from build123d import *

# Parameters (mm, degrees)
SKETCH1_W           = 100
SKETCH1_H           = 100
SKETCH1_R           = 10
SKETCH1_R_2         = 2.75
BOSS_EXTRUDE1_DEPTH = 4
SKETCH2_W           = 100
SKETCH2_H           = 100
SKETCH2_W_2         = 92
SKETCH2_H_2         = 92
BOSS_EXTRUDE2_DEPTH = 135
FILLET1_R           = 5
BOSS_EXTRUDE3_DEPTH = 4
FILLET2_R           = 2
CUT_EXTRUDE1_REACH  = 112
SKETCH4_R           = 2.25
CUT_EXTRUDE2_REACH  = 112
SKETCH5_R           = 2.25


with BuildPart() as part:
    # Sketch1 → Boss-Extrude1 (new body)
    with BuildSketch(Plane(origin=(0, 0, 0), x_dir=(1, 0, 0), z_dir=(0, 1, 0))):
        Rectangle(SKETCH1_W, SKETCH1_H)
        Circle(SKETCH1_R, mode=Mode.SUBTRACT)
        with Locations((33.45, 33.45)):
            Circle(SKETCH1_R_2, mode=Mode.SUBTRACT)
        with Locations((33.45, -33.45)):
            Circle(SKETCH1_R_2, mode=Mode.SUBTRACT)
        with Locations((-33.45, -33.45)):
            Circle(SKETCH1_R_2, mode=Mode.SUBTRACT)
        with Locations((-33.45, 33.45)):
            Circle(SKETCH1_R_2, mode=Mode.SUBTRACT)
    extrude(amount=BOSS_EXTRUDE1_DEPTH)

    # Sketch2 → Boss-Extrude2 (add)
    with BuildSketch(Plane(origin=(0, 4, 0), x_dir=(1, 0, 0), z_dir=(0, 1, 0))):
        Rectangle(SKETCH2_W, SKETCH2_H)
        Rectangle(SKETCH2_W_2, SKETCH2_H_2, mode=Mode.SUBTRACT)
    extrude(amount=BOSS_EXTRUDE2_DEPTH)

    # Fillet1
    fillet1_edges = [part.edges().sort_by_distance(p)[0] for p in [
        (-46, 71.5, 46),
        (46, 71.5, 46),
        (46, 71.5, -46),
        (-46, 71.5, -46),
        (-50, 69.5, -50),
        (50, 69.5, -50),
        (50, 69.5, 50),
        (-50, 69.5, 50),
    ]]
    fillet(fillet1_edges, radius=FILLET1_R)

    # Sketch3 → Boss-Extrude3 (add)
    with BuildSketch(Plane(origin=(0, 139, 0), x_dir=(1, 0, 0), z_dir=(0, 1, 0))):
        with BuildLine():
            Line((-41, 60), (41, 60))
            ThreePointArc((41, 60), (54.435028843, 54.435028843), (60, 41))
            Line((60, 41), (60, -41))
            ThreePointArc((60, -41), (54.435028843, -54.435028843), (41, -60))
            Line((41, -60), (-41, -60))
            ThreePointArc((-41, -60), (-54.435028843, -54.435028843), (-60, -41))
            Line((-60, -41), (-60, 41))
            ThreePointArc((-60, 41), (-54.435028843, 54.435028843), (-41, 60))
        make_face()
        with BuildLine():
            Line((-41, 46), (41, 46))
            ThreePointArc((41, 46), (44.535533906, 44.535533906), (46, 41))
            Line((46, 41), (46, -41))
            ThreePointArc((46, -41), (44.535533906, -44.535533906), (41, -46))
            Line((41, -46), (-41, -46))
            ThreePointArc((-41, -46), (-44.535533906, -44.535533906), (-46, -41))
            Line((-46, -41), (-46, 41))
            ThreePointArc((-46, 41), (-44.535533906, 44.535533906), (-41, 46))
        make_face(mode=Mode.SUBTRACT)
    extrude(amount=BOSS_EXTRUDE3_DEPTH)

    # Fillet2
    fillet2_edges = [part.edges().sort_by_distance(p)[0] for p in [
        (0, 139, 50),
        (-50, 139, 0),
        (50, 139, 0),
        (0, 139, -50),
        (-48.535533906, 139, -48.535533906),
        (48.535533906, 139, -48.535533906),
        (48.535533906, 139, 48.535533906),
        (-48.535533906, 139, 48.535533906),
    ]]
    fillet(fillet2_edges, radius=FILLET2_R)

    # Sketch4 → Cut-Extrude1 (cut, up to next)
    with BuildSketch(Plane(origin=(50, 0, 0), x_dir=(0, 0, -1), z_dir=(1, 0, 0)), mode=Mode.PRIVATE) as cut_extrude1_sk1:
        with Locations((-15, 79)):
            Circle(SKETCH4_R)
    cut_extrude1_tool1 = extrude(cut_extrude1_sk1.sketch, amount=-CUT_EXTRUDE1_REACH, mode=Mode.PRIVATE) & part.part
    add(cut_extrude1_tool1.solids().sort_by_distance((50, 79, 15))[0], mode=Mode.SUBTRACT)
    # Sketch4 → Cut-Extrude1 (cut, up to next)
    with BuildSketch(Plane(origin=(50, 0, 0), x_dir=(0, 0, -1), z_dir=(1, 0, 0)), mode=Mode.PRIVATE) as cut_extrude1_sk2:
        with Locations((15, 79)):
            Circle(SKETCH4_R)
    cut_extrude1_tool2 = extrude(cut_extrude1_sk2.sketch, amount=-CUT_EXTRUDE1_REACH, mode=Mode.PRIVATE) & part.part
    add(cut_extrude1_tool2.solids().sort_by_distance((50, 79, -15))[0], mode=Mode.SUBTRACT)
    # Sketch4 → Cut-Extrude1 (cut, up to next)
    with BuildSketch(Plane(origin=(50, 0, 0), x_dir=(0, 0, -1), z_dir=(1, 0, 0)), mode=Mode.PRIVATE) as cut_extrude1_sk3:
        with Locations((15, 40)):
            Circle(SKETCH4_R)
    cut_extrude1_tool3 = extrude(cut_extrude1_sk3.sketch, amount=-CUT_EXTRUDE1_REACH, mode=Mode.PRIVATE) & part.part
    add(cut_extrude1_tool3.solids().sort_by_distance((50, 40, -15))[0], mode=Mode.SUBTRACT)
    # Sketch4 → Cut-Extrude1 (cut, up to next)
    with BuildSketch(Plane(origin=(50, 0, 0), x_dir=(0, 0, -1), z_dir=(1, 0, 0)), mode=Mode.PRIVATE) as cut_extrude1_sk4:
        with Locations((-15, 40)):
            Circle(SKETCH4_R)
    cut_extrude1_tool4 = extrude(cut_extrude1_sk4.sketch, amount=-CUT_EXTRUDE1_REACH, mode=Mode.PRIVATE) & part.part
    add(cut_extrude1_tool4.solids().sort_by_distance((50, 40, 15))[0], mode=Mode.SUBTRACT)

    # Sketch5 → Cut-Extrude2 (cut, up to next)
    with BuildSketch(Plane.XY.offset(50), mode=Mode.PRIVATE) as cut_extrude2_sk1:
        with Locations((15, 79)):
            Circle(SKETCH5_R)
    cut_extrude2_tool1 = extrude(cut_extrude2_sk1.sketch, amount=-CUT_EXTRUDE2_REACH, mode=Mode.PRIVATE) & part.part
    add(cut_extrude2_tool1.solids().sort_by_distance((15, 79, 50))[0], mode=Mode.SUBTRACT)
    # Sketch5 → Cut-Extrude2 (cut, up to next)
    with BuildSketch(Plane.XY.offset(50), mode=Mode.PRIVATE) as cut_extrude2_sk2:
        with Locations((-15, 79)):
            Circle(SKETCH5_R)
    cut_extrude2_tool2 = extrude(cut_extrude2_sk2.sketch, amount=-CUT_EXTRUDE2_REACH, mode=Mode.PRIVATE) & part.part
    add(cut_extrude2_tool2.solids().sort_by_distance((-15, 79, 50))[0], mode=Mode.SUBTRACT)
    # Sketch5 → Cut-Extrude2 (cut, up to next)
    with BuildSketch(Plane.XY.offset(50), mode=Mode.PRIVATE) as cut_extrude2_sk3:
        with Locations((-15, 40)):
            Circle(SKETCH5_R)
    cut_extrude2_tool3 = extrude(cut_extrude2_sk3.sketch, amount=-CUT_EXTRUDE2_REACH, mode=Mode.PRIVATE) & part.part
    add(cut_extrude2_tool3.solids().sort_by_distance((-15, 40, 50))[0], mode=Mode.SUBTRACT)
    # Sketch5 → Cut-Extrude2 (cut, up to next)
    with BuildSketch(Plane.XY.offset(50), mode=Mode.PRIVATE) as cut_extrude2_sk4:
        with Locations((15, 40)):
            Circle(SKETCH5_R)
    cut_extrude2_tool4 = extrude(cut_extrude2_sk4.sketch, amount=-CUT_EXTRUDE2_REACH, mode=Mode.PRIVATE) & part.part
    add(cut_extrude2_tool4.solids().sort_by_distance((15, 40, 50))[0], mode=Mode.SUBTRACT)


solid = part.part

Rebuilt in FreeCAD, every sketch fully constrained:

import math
import FreeCAD as App
import Part
import Sketcher

V = App.Vector
Q = App.Units.Quantity


def edges_at(feature, points):
    """Names of the edges that pass closest to the given points."""
    edges = feature.Shape.Edges
    near = lambda p: min(range(len(edges)), key=lambda i: edges[i].distToShape(Part.Vertex(*p))[0])
    return sorted({f"Edge{near(p) + 1}" for p in points})

doc = App.newDocument("Part")
params = doc.addObject("Spreadsheet::Sheet", "Params")
for row, (alias, value) in enumerate([
    ("sketch1_diameter", "20 mm"),
    ("sketch1_diameter2", "5.5 mm"),
    ("sketch1_width", "100 mm"),
    ("pad1_length", "4 mm"),
    ("sketch2_width", "100 mm"),
    ("sketch2_width2", "92 mm"),
    ("pad2_length", "135 mm"),
    ("fillet_radius", "5 mm"),
    ("sketch3_radius", "19 mm"),
    ("sketch3_radius2", "5 mm"),
    ("sketch3_width", "82 mm"),
    ("pad3_length", "4 mm"),
    ("fillet2_radius", "2 mm"),
    ("sketch4_diameter", "4.5 mm"),
    ("sketch5_diameter", "4.5 mm"),
    ("sketch6_diameter", "4.5 mm"),
    ("sketch7_diameter", "4.5 mm"),
    ("sketch8_diameter", "4.5 mm"),
    ("sketch9_diameter", "4.5 mm"),
    ("sketch10_diameter", "4.5 mm"),
    ("sketch11_diameter", "4.5 mm"),
], start=1):
    params.set(f"A{row}", alias)
    params.set(f"B{row}", "=" + value)
    params.setAlias(f"B{row}", alias)

body = doc.addObject("PartDesign::Body", "Body")

sketch1 = body.newObject("Sketcher::SketchObject", "Sketch")
sketch1.AttachmentSupport = (doc.getObject("XZ_Plane"), [""])
sketch1.MapMode = "FlatFace"
sketch1.addGeometry(Part.LineSegment(V(-50, -50, 0), V(-50, 50, 0)), False)
sketch1.addGeometry(Part.LineSegment(V(-50, 50, 0), V(50, 50, 0)), False)
sketch1.addGeometry(Part.LineSegment(V(50, 50, 0), V(50, -50, 0)), False)
sketch1.addGeometry(Part.LineSegment(V(50, -50, 0), V(-50, -50, 0)), False)
sketch1.addGeometry(Part.Circle(V(-33.45, 33.45, 0), V(0, 0, 1), 2.75), False)
sketch1.addGeometry(Part.Circle(V(33.45, 33.45, 0), V(0, 0, 1), 2.75), False)
sketch1.addGeometry(Part.Circle(V(-33.45, -33.45, 0), V(0, 0, 1), 2.75), False)
sketch1.addGeometry(Part.Circle(V(0, 0, 0), V(0, 0, 1), 10), False)
sketch1.addGeometry(Part.Circle(V(33.45, -33.45, 0), V(0, 0, 1), 2.75), False)
sketch1.addConstraint(Sketcher.Constraint("Coincident", 0, 2, 1, 1))
sketch1.addConstraint(Sketcher.Constraint("Coincident", 1, 2, 2, 1))
sketch1.addConstraint(Sketcher.Constraint("Coincident", 2, 2, 3, 1))
sketch1.addConstraint(Sketcher.Constraint("Coincident", 3, 2, 0, 1))
sketch1.addConstraint(Sketcher.Constraint("Vertical", 0))
sketch1.addConstraint(Sketcher.Constraint("Horizontal", 1))
sketch1.addConstraint(Sketcher.Constraint("Vertical", 2))
sketch1.addConstraint(Sketcher.Constraint("Horizontal", 3))
sketch1.addConstraint(Sketcher.Constraint("Coincident", 7, 3, -1, 1))
sketch1.addConstraint(Sketcher.Constraint("Equal", 4, 5))
sketch1.addConstraint(Sketcher.Constraint("Equal", 5, 6))
sketch1.addConstraint(Sketcher.Constraint("Equal", 6, 8))
sketch1.addConstraint(Sketcher.Constraint("Symmetric", 5, 3, 6, 3, -1, 1))
sketch1.addConstraint(Sketcher.Constraint("Symmetric", 4, 3, 8, 3, -1, 1))
sketch1.addConstraint(Sketcher.Constraint("Symmetric", 0, 2, 2, 2, -1, 1))
sketch1.addConstraint(Sketcher.Constraint("Symmetric", 4, 3, 5, 3, -2))
sketch1.addConstraint(Sketcher.Constraint("Equal", 3, 0))
sketch1.addConstraint(Sketcher.Constraint("Diameter", 7, Q("20 mm")))
sketch1.addConstraint(Sketcher.Constraint("Diameter", 4, Q("5.5 mm")))
sketch1.addConstraint(Sketcher.Constraint("DistanceX", 1, 1, 1, 2, Q("100 mm")))
sketch1.addConstraint(Sketcher.Constraint("DistanceX", 4, 3, 5, 3, Q("66.9 mm")))
sketch1.addConstraint(Sketcher.Constraint("DistanceY", 6, 3, 4, 3, Q("66.9 mm")))
sketch1.setExpression("Constraints[17]", "Params.sketch1_diameter")
sketch1.setExpression("Constraints[18]", "Params.sketch1_diameter2")
sketch1.setExpression("Constraints[19]", "Params.sketch1_width")
pad1 = body.newObject("PartDesign::Pad", "Pad")
pad1.Profile = sketch1
pad1.setExpression("Length", "Params.pad1_length")
pad1.Reversed = True

sketch2 = body.newObject("Sketcher::SketchObject", "Sketch001")
sketch2.AttachmentSupport = (doc.getObject("XZ_Plane"), [""])
sketch2.MapMode = "FlatFace"
sketch2.AttachmentOffset = App.Placement(V(0, 0, -4), App.Rotation())
sketch2.addGeometry(Part.LineSegment(V(-50, -50, 0), V(-50, 50, 0)), False)
sketch2.addGeometry(Part.LineSegment(V(-50, 50, 0), V(50, 50, 0)), False)
sketch2.addGeometry(Part.LineSegment(V(50, 50, 0), V(50, -50, 0)), False)
sketch2.addGeometry(Part.LineSegment(V(50, -50, 0), V(-50, -50, 0)), False)
sketch2.addGeometry(Part.LineSegment(V(46, 46, 0), V(-46, 46, 0)), False)
sketch2.addGeometry(Part.LineSegment(V(-46, 46, 0), V(-46, -46, 0)), False)
sketch2.addGeometry(Part.LineSegment(V(-46, -46, 0), V(46, -46, 0)), False)
sketch2.addGeometry(Part.LineSegment(V(46, -46, 0), V(46, 46, 0)), False)
sketch2.addConstraint(Sketcher.Constraint("Coincident", 0, 2, 1, 1))
sketch2.addConstraint(Sketcher.Constraint("Coincident", 1, 2, 2, 1))
sketch2.addConstraint(Sketcher.Constraint("Coincident", 2, 2, 3, 1))
sketch2.addConstraint(Sketcher.Constraint("Coincident", 3, 2, 0, 1))
sketch2.addConstraint(Sketcher.Constraint("Coincident", 4, 2, 5, 1))
sketch2.addConstraint(Sketcher.Constraint("Coincident", 5, 2, 6, 1))
sketch2.addConstraint(Sketcher.Constraint("Coincident", 6, 2, 7, 1))
sketch2.addConstraint(Sketcher.Constraint("Coincident", 7, 2, 4, 1))
sketch2.addConstraint(Sketcher.Constraint("Vertical", 0))
sketch2.addConstraint(Sketcher.Constraint("Horizontal", 1))
sketch2.addConstraint(Sketcher.Constraint("Vertical", 2))
sketch2.addConstraint(Sketcher.Constraint("Horizontal", 3))
sketch2.addConstraint(Sketcher.Constraint("Horizontal", 4))
sketch2.addConstraint(Sketcher.Constraint("Vertical", 5))
sketch2.addConstraint(Sketcher.Constraint("Horizontal", 6))
sketch2.addConstraint(Sketcher.Constraint("Vertical", 7))
sketch2.addConstraint(Sketcher.Constraint("Symmetric", 0, 2, 2, 2, -1, 1))
sketch2.addConstraint(Sketcher.Constraint("Symmetric", 4, 2, 6, 2, -1, 1))
sketch2.addConstraint(Sketcher.Constraint("Equal", 3, 0))
sketch2.addConstraint(Sketcher.Constraint("Equal", 6, 5))
sketch2.addConstraint(Sketcher.Constraint("DistanceX", 1, 1, 1, 2, Q("100 mm")))
sketch2.addConstraint(Sketcher.Constraint("DistanceX", 4, 2, 4, 1, Q("92 mm")))
sketch2.setExpression("Constraints[20]", "Params.sketch2_width")
sketch2.setExpression("Constraints[21]", "Params.sketch2_width2")
pad2 = body.newObject("PartDesign::Pad", "Pad001")
pad2.Profile = sketch2
pad2.setExpression("Length", "Params.pad2_length")
pad2.Reversed = True
doc.recompute()

fillet = body.newObject("PartDesign::Fillet", "Fillet")
fillet.Base = (pad2, edges_at(pad2, [
    (-46, 71.5, 46),
    (46, 71.5, 46),
    (46, 71.5, -46),
    (-46, 71.5, -46),
    (-50, 69.5, -50),
    (50, 69.5, -50),
    (50, 69.5, 50),
    (-50, 69.5, 50),
]))
fillet.setExpression("Radius", "Params.fillet_radius")

sketch3 = body.newObject("Sketcher::SketchObject", "Sketch002")
sketch3.AttachmentSupport = (doc.getObject("XZ_Plane"), [""])
sketch3.MapMode = "FlatFace"
sketch3.AttachmentOffset = App.Placement(V(0, 0, -139), App.Rotation())
sketch3.addGeometry(Part.LineSegment(V(41, -60, 0), V(-41, -60, 0)), False)
sketch3.addGeometry(Part.ArcOfCircle(Part.Circle(V(-41, -41, 0), V(0, 0, 1), 19), math.radians(180), math.radians(270)), False)
sketch3.addGeometry(Part.LineSegment(V(-60, -41, 0), V(-60, 41, 0)), False)
sketch3.addGeometry(Part.ArcOfCircle(Part.Circle(V(-41, 41, 0), V(0, 0, 1), 19), math.radians(90), math.radians(180)), False)
sketch3.addGeometry(Part.LineSegment(V(-41, 60, 0), V(41, 60, 0)), False)
sketch3.addGeometry(Part.ArcOfCircle(Part.Circle(V(41, 41, 0), V(0, 0, 1), 19), math.radians(0), math.radians(90)), False)
sketch3.addGeometry(Part.LineSegment(V(60, 41, 0), V(60, -41, 0)), False)
sketch3.addGeometry(Part.ArcOfCircle(Part.Circle(V(41, -41, 0), V(0, 0, 1), 19), math.radians(-90), math.radians(0)), False)
sketch3.addGeometry(Part.LineSegment(V(-41, -46, 0), V(41, -46, 0)), False)
sketch3.addGeometry(Part.ArcOfCircle(Part.Circle(V(41, -41, 0), V(0, 0, 1), 5), math.radians(-90), math.radians(0)), False)
sketch3.addGeometry(Part.LineSegment(V(46, -41, 0), V(46, 41, 0)), False)
sketch3.addGeometry(Part.ArcOfCircle(Part.Circle(V(41, 41, 0), V(0, 0, 1), 5), math.radians(0), math.radians(90)), False)
sketch3.addGeometry(Part.LineSegment(V(41, 46, 0), V(-41, 46, 0)), False)
sketch3.addGeometry(Part.ArcOfCircle(Part.Circle(V(-41, 41, 0), V(0, 0, 1), 5), math.radians(90), math.radians(180)), False)
sketch3.addGeometry(Part.LineSegment(V(-46, 41, 0), V(-46, -41, 0)), False)
sketch3.addGeometry(Part.ArcOfCircle(Part.Circle(V(-41, -41, 0), V(0, 0, 1), 5), math.radians(180), math.radians(270)), False)
sketch3.addConstraint(Sketcher.Constraint("Tangent", 0, 2, 1, 2))
sketch3.addConstraint(Sketcher.Constraint("Tangent", 1, 1, 2, 1))
sketch3.addConstraint(Sketcher.Constraint("Tangent", 2, 2, 3, 2))
sketch3.addConstraint(Sketcher.Constraint("Tangent", 3, 1, 4, 1))
sketch3.addConstraint(Sketcher.Constraint("Tangent", 4, 2, 5, 2))
sketch3.addConstraint(Sketcher.Constraint("Tangent", 5, 1, 6, 1))
sketch3.addConstraint(Sketcher.Constraint("Tangent", 6, 2, 7, 2))
sketch3.addConstraint(Sketcher.Constraint("Tangent", 7, 1, 0, 1))
sketch3.addConstraint(Sketcher.Constraint("Tangent", 8, 2, 9, 1))
sketch3.addConstraint(Sketcher.Constraint("Tangent", 9, 2, 10, 1))
sketch3.addConstraint(Sketcher.Constraint("Tangent", 10, 2, 11, 1))
sketch3.addConstraint(Sketcher.Constraint("Tangent", 11, 2, 12, 1))
sketch3.addConstraint(Sketcher.Constraint("Tangent", 12, 2, 13, 1))
sketch3.addConstraint(Sketcher.Constraint("Tangent", 13, 2, 14, 1))
sketch3.addConstraint(Sketcher.Constraint("Tangent", 14, 2, 15, 1))
sketch3.addConstraint(Sketcher.Constraint("Tangent", 15, 2, 8, 1))
sketch3.addConstraint(Sketcher.Constraint("Horizontal", 0))
sketch3.addConstraint(Sketcher.Constraint("Vertical", 2))
sketch3.addConstraint(Sketcher.Constraint("Horizontal", 4))
sketch3.addConstraint(Sketcher.Constraint("Vertical", 6))
sketch3.addConstraint(Sketcher.Constraint("Horizontal", 8))
sketch3.addConstraint(Sketcher.Constraint("Vertical", 10))
sketch3.addConstraint(Sketcher.Constraint("Horizontal", 12))
sketch3.addConstraint(Sketcher.Constraint("Vertical", 14))
sketch3.addConstraint(Sketcher.Constraint("Coincident", 9, 3, 7, 3))
sketch3.addConstraint(Sketcher.Constraint("Coincident", 11, 3, 5, 3))
sketch3.addConstraint(Sketcher.Constraint("Coincident", 13, 3, 3, 3))
sketch3.addConstraint(Sketcher.Constraint("Equal", 1, 3))
sketch3.addConstraint(Sketcher.Constraint("Equal", 3, 5))
sketch3.addConstraint(Sketcher.Constraint("Equal", 5, 7))
sketch3.addConstraint(Sketcher.Constraint("Equal", 13, 15))
sketch3.addConstraint(Sketcher.Constraint("Symmetric", 1, 3, 5, 3, -1, 1))
sketch3.addConstraint(Sketcher.Constraint("Equal", 12, 2))
sketch3.addConstraint(Sketcher.Constraint("Radius", 1, Q("19 mm")))
sketch3.addConstraint(Sketcher.Constraint("Radius", 9, Q("5 mm")))
sketch3.addConstraint(Sketcher.Constraint("DistanceX", 0, 2, 0, 1, Q("82 mm")))
sketch3.setExpression("Constraints[33]", "Params.sketch3_radius")
sketch3.setExpression("Constraints[34]", "Params.sketch3_radius2")
sketch3.setExpression("Constraints[35]", "Params.sketch3_width")
pad3 = body.newObject("PartDesign::Pad", "Pad002")
pad3.Profile = sketch3
pad3.setExpression("Length", "Params.pad3_length")
pad3.Reversed = True
doc.recompute()

fillet2 = body.newObject("PartDesign::Fillet", "Fillet001")
fillet2.Base = (pad3, edges_at(pad3, [
    (0, 139, 50),
    (-50, 139, 0),
    (50, 139, 0),
    (0, 139, -50),
    (-48.536, 139, -48.536),
    (48.536, 139, -48.536),
    (48.536, 139, 48.536),
    (-48.536, 139, 48.536),
]))
fillet2.setExpression("Radius", "Params.fillet2_radius")

sketch4 = body.newObject("Sketcher::SketchObject", "Sketch003")
sketch4.AttachmentSupport = (doc.getObject("YZ_Plane"), [""])
sketch4.MapMode = "FlatFace"
sketch4.AttachmentOffset = App.Placement(V(0, 0, 50), App.Rotation())
sketch4.addGeometry(Part.Circle(V(79, 15, 0), V(0, 0, 1), 2.25), False)
sketch4.addConstraint(Sketcher.Constraint("Diameter", 0, Q("4.5 mm")))
sketch4.addConstraint(Sketcher.Constraint("DistanceX", -1, 1, 0, 3, Q("79 mm")))
sketch4.addConstraint(Sketcher.Constraint("DistanceY", -1, 1, 0, 3, Q("15 mm")))
sketch4.setExpression("Constraints[0]", "Params.sketch4_diameter")
pocket1 = body.newObject("PartDesign::Pocket", "Pocket")
pocket1.Profile = sketch4
pocket1.Type = "UpToFirst"

sketch5 = body.newObject("Sketcher::SketchObject", "Sketch004")
sketch5.AttachmentSupport = (doc.getObject("YZ_Plane"), [""])
sketch5.MapMode = "FlatFace"
sketch5.AttachmentOffset = App.Placement(V(0, 0, 50), App.Rotation())
sketch5.addGeometry(Part.Circle(V(79, -15, 0), V(0, 0, 1), 2.25), False)
sketch5.addConstraint(Sketcher.Constraint("Diameter", 0, Q("4.5 mm")))
sketch5.addConstraint(Sketcher.Constraint("DistanceX", -1, 1, 0, 3, Q("79 mm")))
sketch5.addConstraint(Sketcher.Constraint("DistanceY", 0, 3, -1, 1, Q("15 mm")))
sketch5.setExpression("Constraints[0]", "Params.sketch5_diameter")
pocket2 = body.newObject("PartDesign::Pocket", "Pocket001")
pocket2.Profile = sketch5
pocket2.Type = "UpToFirst"

sketch6 = body.newObject("Sketcher::SketchObject", "Sketch005")
sketch6.AttachmentSupport = (doc.getObject("YZ_Plane"), [""])
sketch6.MapMode = "FlatFace"
sketch6.AttachmentOffset = App.Placement(V(0, 0, 50), App.Rotation())
sketch6.addGeometry(Part.Circle(V(40, -15, 0), V(0, 0, 1), 2.25), False)
sketch6.addConstraint(Sketcher.Constraint("Diameter", 0, Q("4.5 mm")))
sketch6.addConstraint(Sketcher.Constraint("DistanceX", -1, 1, 0, 3, Q("40 mm")))
sketch6.addConstraint(Sketcher.Constraint("DistanceY", 0, 3, -1, 1, Q("15 mm")))
sketch6.setExpression("Constraints[0]", "Params.sketch6_diameter")
pocket3 = body.newObject("PartDesign::Pocket", "Pocket002")
pocket3.Profile = sketch6
pocket3.Type = "UpToFirst"

sketch7 = body.newObject("Sketcher::SketchObject", "Sketch006")
sketch7.AttachmentSupport = (doc.getObject("YZ_Plane"), [""])
sketch7.MapMode = "FlatFace"
sketch7.AttachmentOffset = App.Placement(V(0, 0, 50), App.Rotation())
sketch7.addGeometry(Part.Circle(V(40, 15, 0), V(0, 0, 1), 2.25), False)
sketch7.addConstraint(Sketcher.Constraint("Diameter", 0, Q("4.5 mm")))
sketch7.addConstraint(Sketcher.Constraint("DistanceX", -1, 1, 0, 3, Q("40 mm")))
sketch7.addConstraint(Sketcher.Constraint("DistanceY", -1, 1, 0, 3, Q("15 mm")))
sketch7.setExpression("Constraints[0]", "Params.sketch7_diameter")
pocket4 = body.newObject("PartDesign::Pocket", "Pocket003")
pocket4.Profile = sketch7
pocket4.Type = "UpToFirst"

sketch8 = body.newObject("Sketcher::SketchObject", "Sketch007")
sketch8.AttachmentSupport = (doc.getObject("XY_Plane"), [""])
sketch8.MapMode = "FlatFace"
sketch8.AttachmentOffset = App.Placement(V(0, 0, 50), App.Rotation())
sketch8.addGeometry(Part.Circle(V(15, 79, 0), V(0, 0, 1), 2.25), False)
sketch8.addConstraint(Sketcher.Constraint("Diameter", 0, Q("4.5 mm")))
sketch8.addConstraint(Sketcher.Constraint("DistanceX", -1, 1, 0, 3, Q("15 mm")))
sketch8.addConstraint(Sketcher.Constraint("DistanceY", -1, 1, 0, 3, Q("79 mm")))
sketch8.setExpression("Constraints[0]", "Params.sketch8_diameter")
pocket5 = body.newObject("PartDesign::Pocket", "Pocket004")
pocket5.Profile = sketch8
pocket5.Type = "UpToFirst"

sketch9 = body.newObject("Sketcher::SketchObject", "Sketch008")
sketch9.AttachmentSupport = (doc.getObject("XY_Plane"), [""])
sketch9.MapMode = "FlatFace"
sketch9.AttachmentOffset = App.Placement(V(0, 0, 50), App.Rotation())
sketch9.addGeometry(Part.Circle(V(-15, 79, 0), V(0, 0, 1), 2.25), False)
sketch9.addConstraint(Sketcher.Constraint("Diameter", 0, Q("4.5 mm")))
sketch9.addConstraint(Sketcher.Constraint("DistanceX", 0, 3, -1, 1, Q("15 mm")))
sketch9.addConstraint(Sketcher.Constraint("DistanceY", -1, 1, 0, 3, Q("79 mm")))
sketch9.setExpression("Constraints[0]", "Params.sketch9_diameter")
pocket6 = body.newObject("PartDesign::Pocket", "Pocket005")
pocket6.Profile = sketch9
pocket6.Type = "UpToFirst"

sketch10 = body.newObject("Sketcher::SketchObject", "Sketch009")
sketch10.AttachmentSupport = (doc.getObject("XY_Plane"), [""])
sketch10.MapMode = "FlatFace"
sketch10.AttachmentOffset = App.Placement(V(0, 0, 50), App.Rotation())
sketch10.addGeometry(Part.Circle(V(-15, 40, 0), V(0, 0, 1), 2.25), False)
sketch10.addConstraint(Sketcher.Constraint("Diameter", 0, Q("4.5 mm")))
sketch10.addConstraint(Sketcher.Constraint("DistanceX", 0, 3, -1, 1, Q("15 mm")))
sketch10.addConstraint(Sketcher.Constraint("DistanceY", -1, 1, 0, 3, Q("40 mm")))
sketch10.setExpression("Constraints[0]", "Params.sketch10_diameter")
pocket7 = body.newObject("PartDesign::Pocket", "Pocket006")
pocket7.Profile = sketch10
pocket7.Type = "UpToFirst"

sketch11 = body.newObject("Sketcher::SketchObject", "Sketch010")
sketch11.AttachmentSupport = (doc.getObject("XY_Plane"), [""])
sketch11.MapMode = "FlatFace"
sketch11.AttachmentOffset = App.Placement(V(0, 0, 50), App.Rotation())
sketch11.addGeometry(Part.Circle(V(15, 40, 0), V(0, 0, 1), 2.25), False)
sketch11.addConstraint(Sketcher.Constraint("Diameter", 0, Q("4.5 mm")))
sketch11.addConstraint(Sketcher.Constraint("DistanceX", -1, 1, 0, 3, Q("15 mm")))
sketch11.addConstraint(Sketcher.Constraint("DistanceY", -1, 1, 0, 3, Q("40 mm")))
sketch11.setExpression("Constraints[0]", "Params.sketch11_diameter")
pocket8 = body.newObject("PartDesign::Pocket", "Pocket007")
pocket8.Profile = sketch11
pocket8.Type = "UpToFirst"

doc.recompute()
